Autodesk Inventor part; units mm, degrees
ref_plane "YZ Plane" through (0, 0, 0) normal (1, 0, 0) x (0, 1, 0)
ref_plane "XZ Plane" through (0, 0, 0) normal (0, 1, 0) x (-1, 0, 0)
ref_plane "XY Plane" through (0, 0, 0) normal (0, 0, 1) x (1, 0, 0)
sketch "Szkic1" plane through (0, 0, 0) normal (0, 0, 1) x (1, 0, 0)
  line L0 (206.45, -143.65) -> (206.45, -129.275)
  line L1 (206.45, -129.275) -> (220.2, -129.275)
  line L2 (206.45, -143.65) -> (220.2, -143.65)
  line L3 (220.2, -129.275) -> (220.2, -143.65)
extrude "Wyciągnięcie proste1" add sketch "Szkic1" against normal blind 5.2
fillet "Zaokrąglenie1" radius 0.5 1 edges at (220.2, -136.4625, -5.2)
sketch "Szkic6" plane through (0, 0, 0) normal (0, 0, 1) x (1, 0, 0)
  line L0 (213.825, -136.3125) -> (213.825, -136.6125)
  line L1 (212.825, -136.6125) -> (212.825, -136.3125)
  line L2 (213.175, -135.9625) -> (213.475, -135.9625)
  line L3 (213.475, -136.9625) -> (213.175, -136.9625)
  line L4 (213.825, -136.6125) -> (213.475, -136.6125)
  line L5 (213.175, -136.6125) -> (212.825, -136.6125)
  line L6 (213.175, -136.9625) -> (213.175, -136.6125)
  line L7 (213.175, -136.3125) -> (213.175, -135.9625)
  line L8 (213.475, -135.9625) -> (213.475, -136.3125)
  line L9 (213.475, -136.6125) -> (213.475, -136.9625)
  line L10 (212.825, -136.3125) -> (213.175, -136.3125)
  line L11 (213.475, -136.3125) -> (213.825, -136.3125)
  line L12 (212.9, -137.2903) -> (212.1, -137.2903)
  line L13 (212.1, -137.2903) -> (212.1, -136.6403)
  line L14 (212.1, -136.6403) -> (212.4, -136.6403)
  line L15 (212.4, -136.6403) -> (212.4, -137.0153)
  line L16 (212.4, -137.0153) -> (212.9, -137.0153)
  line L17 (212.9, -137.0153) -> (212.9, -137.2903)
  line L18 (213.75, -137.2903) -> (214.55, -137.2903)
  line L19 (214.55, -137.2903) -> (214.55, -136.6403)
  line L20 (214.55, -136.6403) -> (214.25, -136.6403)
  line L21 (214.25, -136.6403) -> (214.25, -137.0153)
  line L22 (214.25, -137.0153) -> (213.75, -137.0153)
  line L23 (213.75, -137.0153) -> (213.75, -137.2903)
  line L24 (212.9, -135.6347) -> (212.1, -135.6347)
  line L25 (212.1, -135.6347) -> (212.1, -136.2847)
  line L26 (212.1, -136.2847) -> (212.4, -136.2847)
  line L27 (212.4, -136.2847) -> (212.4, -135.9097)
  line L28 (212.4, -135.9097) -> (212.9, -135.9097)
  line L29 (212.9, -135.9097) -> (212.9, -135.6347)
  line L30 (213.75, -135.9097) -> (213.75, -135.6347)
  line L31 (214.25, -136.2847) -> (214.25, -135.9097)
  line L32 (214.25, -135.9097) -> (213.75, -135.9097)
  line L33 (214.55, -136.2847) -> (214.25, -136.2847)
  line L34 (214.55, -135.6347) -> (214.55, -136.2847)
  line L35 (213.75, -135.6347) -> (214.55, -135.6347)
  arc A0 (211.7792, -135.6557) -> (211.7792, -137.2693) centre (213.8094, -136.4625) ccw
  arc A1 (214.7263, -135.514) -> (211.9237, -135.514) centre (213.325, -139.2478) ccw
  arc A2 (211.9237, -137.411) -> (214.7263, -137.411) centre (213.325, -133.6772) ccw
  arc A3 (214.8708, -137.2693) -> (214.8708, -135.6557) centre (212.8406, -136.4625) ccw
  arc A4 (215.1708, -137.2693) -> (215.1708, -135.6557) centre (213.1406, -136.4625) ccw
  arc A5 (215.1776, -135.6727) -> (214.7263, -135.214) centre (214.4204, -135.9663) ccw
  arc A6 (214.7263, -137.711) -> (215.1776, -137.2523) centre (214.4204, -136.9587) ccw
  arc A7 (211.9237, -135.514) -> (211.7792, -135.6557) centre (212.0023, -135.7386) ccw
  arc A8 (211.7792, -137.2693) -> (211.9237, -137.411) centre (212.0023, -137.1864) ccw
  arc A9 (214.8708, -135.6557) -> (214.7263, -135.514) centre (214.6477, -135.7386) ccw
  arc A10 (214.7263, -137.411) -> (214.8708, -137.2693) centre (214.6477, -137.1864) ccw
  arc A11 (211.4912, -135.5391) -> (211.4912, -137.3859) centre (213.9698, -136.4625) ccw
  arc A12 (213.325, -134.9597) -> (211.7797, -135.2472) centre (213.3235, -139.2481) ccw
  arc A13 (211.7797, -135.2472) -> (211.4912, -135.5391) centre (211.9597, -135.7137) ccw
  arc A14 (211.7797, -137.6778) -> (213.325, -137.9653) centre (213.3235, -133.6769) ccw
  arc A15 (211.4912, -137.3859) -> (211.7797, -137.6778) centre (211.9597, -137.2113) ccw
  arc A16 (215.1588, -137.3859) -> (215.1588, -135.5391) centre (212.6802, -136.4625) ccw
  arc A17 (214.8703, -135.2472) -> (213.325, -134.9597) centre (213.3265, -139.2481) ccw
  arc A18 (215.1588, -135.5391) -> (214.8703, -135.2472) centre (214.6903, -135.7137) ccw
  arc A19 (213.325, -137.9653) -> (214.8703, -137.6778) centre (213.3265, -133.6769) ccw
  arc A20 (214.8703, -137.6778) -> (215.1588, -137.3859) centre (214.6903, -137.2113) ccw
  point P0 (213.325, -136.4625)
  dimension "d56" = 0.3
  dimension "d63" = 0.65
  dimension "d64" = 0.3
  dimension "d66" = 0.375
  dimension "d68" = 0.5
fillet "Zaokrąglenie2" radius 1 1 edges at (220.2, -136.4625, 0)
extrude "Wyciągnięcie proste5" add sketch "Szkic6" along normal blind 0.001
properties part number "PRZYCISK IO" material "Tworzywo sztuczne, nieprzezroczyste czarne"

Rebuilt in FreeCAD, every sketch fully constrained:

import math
import FreeCAD as App
import Part
import Sketcher

V = App.Vector


def edges_at(feature, points):
    """Names of the edges that pass closest to the given points."""
    edges = feature.Shape.Edges
    near = lambda p: min(range(len(edges)), key=lambda i: edges[i].distToShape(Part.Vertex(*p))[0])
    return sorted({f"Edge{near(p) + 1}" for p in points})


def add_polygon(sketch, points):
    """Adds a closed chain of lines whose ends are joined by coincident constraints."""
    first, n = sketch.GeometryCount, len(points)
    for a, b in zip(points, points[1:] + points[:1]):
        sketch.addGeometry(Part.LineSegment(App.Vector(*a, 0), App.Vector(*b, 0)), False)
    for i in range(n):
        sketch.addConstraint(Sketcher.Constraint("Coincident", first + i, 2, first + (i + 1) % n, 1))

doc = App.newDocument("Part")
body = doc.addObject("PartDesign::Body", "Body")

sketch1 = doc.addObject("Sketcher::SketchObject", "Sketch")
body.addObject(sketch1)
sketch1.AttachmentSupport = (doc.XY_Plane, [""])
sketch1.MapMode = "FlatFace"
add_polygon(sketch1, [(206, -129), (206, -144), (220, -144), (220, -129)])
sketch1.addConstraint([
    Sketcher.Constraint("Vertical", 0),
    Sketcher.Constraint("Horizontal", 1),
    Sketcher.Constraint("Vertical", 2),
    Sketcher.Constraint("Horizontal", 3),
    Sketcher.Constraint("DistanceX", 1, 1, 1, 2, 13.75),
    Sketcher.Constraint("DistanceX", -1, 1, 1, 2, 220.2),
    Sketcher.Constraint("DistanceY", 0, 2, 0, 1, 14.375),
    Sketcher.Constraint("DistanceY", 0, 2, -1, 1, 143.65),
])
pad1 = doc.addObject("PartDesign::Pad", "Pad")
body.addObject(pad1)
pad1.Profile = sketch1
pad1.Length = 5.2
pad1.Reversed = True
doc.recompute()

fillet = doc.addObject("PartDesign::Fillet", "Fillet")
body.addObject(fillet)
fillet.Base = (pad1, edges_at(pad1, [(220.2, -136.463, -5.2)]))
fillet.Radius = 0.5
doc.recompute()

fillet2 = doc.addObject("PartDesign::Fillet", "Fillet001")
body.addObject(fillet2)
fillet2.Base = (fillet, edges_at(fillet, [(220.2, -136.463, 0)]))
fillet2.Radius = 1

sketch2 = doc.addObject("Sketcher::SketchObject", "Sketch001")
body.addObject(sketch2)
sketch2.AttachmentSupport = (doc.XY_Plane, [""])
sketch2.MapMode = "FlatFace"
add_polygon(sketch2, [(213.825, -136.6125), (213.825, -136.3125), (213.475, -136.3125), (213.475, -135.9625), (213.175, -135.9625), (213.175, -136.3125), (212.825, -136.3125), (212.825, -136.6125), (213.175, -136.6125), (213.175, -136.9625), (213.475, -136.9625), (213.475, -136.6125)])
add_polygon(sketch2, [(212.1, -137.2903), (212.9, -137.2903), (212.9, -137.0153), (212.4, -137.0153), (212.4, -136.6403), (212.1, -136.6403)])
add_polygon(sketch2, [(213.75, -137.0153), (213.75, -137.2903), (214.55, -137.2903), (214.55, -136.6403), (214.25, -136.6403), (214.25, -137.0153)])
add_polygon(sketch2, [(212.9, -135.9097), (212.9, -135.6347), (212.1, -135.6347), (212.1, -136.2847), (212.4, -136.2847), (212.4, -135.9097)])
add_polygon(sketch2, [(213.75, -135.6347), (213.75, -135.9097), (214.25, -135.9097), (214.25, -136.2847), (214.55, -136.2847), (214.55, -135.6347)])
sketch2.addGeometry(Part.ArcOfCircle(Part.Circle(V(211.9597, -135.7137, 0), V(0, 0, 1), 0.500022), math.radians(111.099212), math.radians(159.560644)), False)
sketch2.addGeometry(Part.ArcOfCircle(Part.Circle(V(213.9698, -136.4625, 0), V(0, 0, 1), 2.645019), math.radians(159.567171), math.radians(200.432829)), False)
sketch2.addGeometry(Part.ArcOfCircle(Part.Circle(V(211.9597, -137.2113, 0), V(0, 0, 1), 0.499977), math.radians(-159.560644), math.radians(-111.099212)), False)
sketch2.addGeometry(Part.ArcOfCircle(Part.Circle(V(213.3235, -133.6769, 0), V(0, 0, 1), 4.288417), math.radians(-111.099765), math.radians(-89.979959)), False)
sketch2.addGeometry(Part.ArcOfCircle(Part.Circle(V(213.3265, -133.6769, 0), V(0, 0, 1), 4.2884), math.radians(-90.020041), math.radians(-68.900235)), False)
sketch2.addGeometry(Part.ArcOfCircle(Part.Circle(V(214.6903, -137.2113, 0), V(0, 0, 1), 0.500022), math.radians(-68.900788), math.radians(-20.439356)), False)
sketch2.addGeometry(Part.ArcOfCircle(Part.Circle(V(212.6802, -136.4625, 0), V(0, 0, 1), 2.645019), math.radians(-20.432829), math.radians(20.432829)), False)
sketch2.addGeometry(Part.ArcOfCircle(Part.Circle(V(214.6903, -135.7137, 0), V(0, 0, 1), 0.499977), math.radians(20.439356), math.radians(68.900788)), False)
sketch2.addGeometry(Part.ArcOfCircle(Part.Circle(V(213.3265, -139.2481, 0), V(0, 0, 1), 4.288417), math.radians(68.900235), math.radians(90.020041)), False)
sketch2.addGeometry(Part.ArcOfCircle(Part.Circle(V(213.3235, -139.2481, 0), V(0, 0, 1), 4.2884), math.radians(89.979959), math.radians(111.099765)), False)
sketch2.addGeometry(Part.ArcOfCircle(Part.Circle(V(213.8094, -136.4625, 0), V(0, 0, 1), 2.184637), math.radians(158.327163), math.radians(201.672837)), False)
sketch2.addGeometry(Part.ArcOfCircle(Part.Circle(V(212.0023, -135.7386, 0), V(0, 0, 1), 0.237956), math.radians(109.287774), math.radians(159.615828)), False)
sketch2.addGeometry(Part.ArcOfCircle(Part.Circle(V(213.325, -139.2478, 0), V(0, 0, 1), 3.988095), math.radians(69.428821), math.radians(110.571179)), False)
sketch2.addGeometry(Part.ArcOfCircle(Part.Circle(V(214.6477, -135.7386, 0), V(0, 0, 1), 0.238004), math.radians(20.384172), math.radians(70.712226)), False)
sketch2.addGeometry(Part.ArcOfCircle(Part.Circle(V(212.8406, -136.4625, 0), V(0, 0, 1), 2.184637), math.radians(-21.672837), math.radians(21.672837)), False)
sketch2.addGeometry(Part.ArcOfCircle(Part.Circle(V(214.6477, -137.1864, 0), V(0, 0, 1), 0.237956), math.radians(-70.712226), math.radians(-20.384172)), False)
sketch2.addGeometry(Part.ArcOfCircle(Part.Circle(V(213.325, -133.6772, 0), V(0, 0, 1), 3.988095), math.radians(-110.571179), math.radians(-69.428821)), False)
sketch2.addGeometry(Part.ArcOfCircle(Part.Circle(V(212.0023, -137.1864, 0), V(0, 0, 1), 0.238004), math.radians(-159.615828), math.radians(-109.287774)), False)
sketch2.addConstraint([
    Sketcher.Constraint("Tangent", 36, 2, 37, 1),
    Sketcher.Constraint("Tangent", 37, 2, 38, 1),
    Sketcher.Constraint("Tangent", 38, 2, 39, 1),
    Sketcher.Constraint("Coincident", 39, 2, 40, 1),
    Sketcher.Constraint("Tangent", 40, 2, 41, 1),
    Sketcher.Constraint("Tangent", 41, 2, 42, 1),
    Sketcher.Constraint("Tangent", 42, 2, 43, 1),
    Sketcher.Constraint("Tangent", 43, 2, 44, 1),
    Sketcher.Constraint("Coincident", 44, 2, 45, 1),
    Sketcher.Constraint("Tangent", 45, 2, 36, 1),
    Sketcher.Constraint("Coincident", 46, 1, 47, 2),
    Sketcher.Constraint("Coincident", 47, 1, 48, 2),
    Sketcher.Constraint("Coincident", 48, 1, 49, 2),
    Sketcher.Constraint("Coincident", 49, 1, 50, 2),
    Sketcher.Constraint("Coincident", 50, 1, 51, 2),
    Sketcher.Constraint("Coincident", 51, 1, 52, 2),
    Sketcher.Constraint("Coincident", 52, 1, 53, 2),
    Sketcher.Constraint("Coincident", 53, 1, 46, 2),
    Sketcher.Constraint("Vertical", 0),
    Sketcher.Constraint("Horizontal", 1),
    Sketcher.Constraint("Vertical", 2),
    Sketcher.Constraint("Horizontal", 3),
    Sketcher.Constraint("Vertical", 4),
    Sketcher.Constraint("Horizontal", 5),
    Sketcher.Constraint("Vertical", 6),
    Sketcher.Constraint("Horizontal", 7),
    Sketcher.Constraint("Vertical", 8),
    Sketcher.Constraint("Horizontal", 9),
    Sketcher.Constraint("Vertical", 10),
    Sketcher.Constraint("Horizontal", 11),
    Sketcher.Constraint("Horizontal", 12),
    Sketcher.Constraint("Vertical", 13),
    Sketcher.Constraint("Horizontal", 14),
    Sketcher.Constraint("Vertical", 15),
    Sketcher.Constraint("Horizontal", 16),
    Sketcher.Constraint("Vertical", 17),
    Sketcher.Constraint("Vertical", 18),
    Sketcher.Constraint("Horizontal", 19),
    Sketcher.Constraint("Vertical", 20),
    Sketcher.Constraint("Horizontal", 21),
    Sketcher.Constraint("Vertical", 22),
    Sketcher.Constraint("Horizontal", 23),
    Sketcher.Constraint("Vertical", 24),
    Sketcher.Constraint("Horizontal", 25),
    Sketcher.Constraint("Vertical", 26),
    Sketcher.Constraint("Horizontal", 27),
    Sketcher.Constraint("Vertical", 28),
    Sketcher.Constraint("Horizontal", 29),
    Sketcher.Constraint("Vertical", 30),
    Sketcher.Constraint("Horizontal", 31),
    Sketcher.Constraint("Vertical", 32),
    Sketcher.Constraint("Horizontal", 33),
    Sketcher.Constraint("Vertical", 34),
    Sketcher.Constraint("Horizontal", 35),
    Sketcher.Constraint("Equal", 36, 38),
    Sketcher.Constraint("Equal", 39, 40),
    Sketcher.Constraint("Equal", 38, 41),
    Sketcher.Constraint("Equal", 37, 42),
    Sketcher.Constraint("Equal", 41, 43),
    Sketcher.Constraint("Equal", 40, 44),
    Sketcher.Constraint("Equal", 44, 45),
    Sketcher.Constraint("Equal", 47, 49),
    Sketcher.Constraint("Equal", 46, 50),
    Sketcher.Constraint("Equal", 49, 51),
    Sketcher.Constraint("Equal", 48, 52),
    Sketcher.Constraint("Equal", 51, 53),
    Sketcher.Constraint("Horizontal", 38, 3, 41, 3),
    Sketcher.Constraint("Horizontal", 37, 3, 42, 3),
    Sketcher.Constraint("Horizontal", 36, 3, 43, 3),
    Sketcher.Constraint("Horizontal", 42, 3, 46, 3),
    Sketcher.Constraint("Horizontal", 47, 3, 49, 3),
    Sketcher.Constraint("Horizontal", 46, 3, 50, 3),
    Sketcher.Constraint("Horizontal", 51, 3, 53, 3),
    Sketcher.Constraint("Horizontal", 1, 2, 4, 2),
    Sketcher.Constraint("Horizontal", 7, 2, 10, 2),
    Sketcher.Constraint("Horizontal", 17, 2, 18, 2),
    Sketcher.Constraint("Horizontal", 16, 2, 20, 2),
    Sketcher.Constraint("Horizontal", 14, 2, 22, 2),
    Sketcher.Constraint("Horizontal", 29, 2, 30, 2),
    Sketcher.Constraint("Horizontal", 27, 2, 32, 2),
    Sketcher.Constraint("Horizontal", 25, 2, 34, 2),
    Sketcher.Constraint("Horizontal", 47, 1, 48, 1),
    Sketcher.Constraint("Horizontal", 46, 1, 49, 1),
    Sketcher.Constraint("Horizontal", 51, 1, 52, 1),
    Sketcher.Constraint("Horizontal", 50, 1, 53, 1),
    Sketcher.Constraint("Vertical", 36, 3, 38, 3),
    Sketcher.Constraint("Vertical", 40, 3, 44, 3),
    Sketcher.Constraint("Vertical", 39, 3, 45, 3),
    Sketcher.Constraint("Vertical", 49, 3, 51, 3),
    Sketcher.Constraint("Vertical", 4, 2, 7, 2),
    Sketcher.Constraint("Vertical", 2, 2, 9, 2),
    Sketcher.Constraint("Vertical", 13, 2, 24, 2),
    Sketcher.Constraint("Vertical", 17, 2, 25, 2),
    Sketcher.Constraint("Vertical", 15, 2, 27, 2),
    Sketcher.Constraint("Vertical", 23, 2, 30, 2),
    Sketcher.Constraint("Vertical", 22, 2, 31, 2),
    Sketcher.Constraint("Vertical", 20, 2, 33, 2),
    Sketcher.Constraint("Vertical", 52, 3, 39, 2),
    Sketcher.Constraint("Vertical", 49, 1, 50, 1),
    Sketcher.Constraint("Vertical", 48, 1, 51, 1),
    Sketcher.Constraint("Equal", 1, 5),
    Sketcher.Constraint("Equal", 9, 16),
    Sketcher.Constraint("Equal", 12, 19),
    Sketcher.Constraint("Equal", 16, 21),
    Sketcher.Constraint("Equal", 33, 0),
    Sketcher.Constraint("Equal", 11, 2),
    Sketcher.Constraint("Equal", 4, 8),
    Sketcher.Constraint("Equal", 18, 24),
    Sketcher.Constraint("Equal", 20, 26),
    Sketcher.Constraint("Radius", 36, 0.5),
    Sketcher.Constraint("DistanceX", 3, 2, 3, 1, 0.3),
    Sketcher.Constraint("DistanceX", 14, 2, 14, 1, 0.5),
    Sketcher.Constraint("DistanceY", 17, 2, 17, 1, 0.65),
    Sketcher.Constraint("DistanceY", 15, 1, 15, 2, 0.375),
    Sketcher.Constraint("Radius", 37, 2.645),
    Sketcher.Constraint("Radius", 47, 0.238),
    Sketcher.Constraint("Radius", 48, 3.988),
    Sketcher.Constraint("DistanceX", 1, 2, 1, 1, 0.35),
    Sketcher.Constraint("DistanceX", -1, 1, 12, 2, 212.9),
    Sketcher.Constraint("Radius", 39, 4.2884),
    Sketcher.Constraint("Radius", 46, 2.1846),
    Sketcher.Constraint("DistanceX", -1, 1, 18, 2, 213.75),
    Sketcher.Constraint("DistanceY", 39, 3, -1, 1, 133.677),
    Sketcher.Constraint("DistanceY", 44, 3, -1, 1, 139.248),
    Sketcher.Constraint("DistanceX", -1, 1, 48, 3, 213.325),
    Sketcher.Constraint("DistanceX", -1, 1, 0, 2, 213.825),
    Sketcher.Constraint("DistanceY", 36, 2, -1, 1, 135.539),
    Sketcher.Constraint("DistanceY", 47, 1, -1, 1, 135.514),
    Sketcher.Constraint("DistanceX", -1, 1, 36, 3, 211.9597),
    Sketcher.Constraint("DistanceX", -1, 1, 40, 3, 213.3265),
    Sketcher.Constraint("DistanceX", -1, 1, 46, 3, 213.8094),
    Sketcher.Constraint("DistanceX", -1, 1, 47, 3, 212.0023),
    Sketcher.Constraint("DistanceY", 47, 3, -1, 1, 135.7386),
    Sketcher.Constraint("DistanceY", 0, 2, -1, 1, 136.3125),
    Sketcher.Constraint("DistanceY", 12, 2, -1, 1, 137.2903),
    Sketcher.Constraint("DistanceY", 24, 2, -1, 1, 135.6347),
])
pad2 = doc.addObject("PartDesign::Pad", "Pad001")
body.addObject(pad2)
pad2.Profile = sketch2
pad2.Length = 0.001

doc.recompute()
